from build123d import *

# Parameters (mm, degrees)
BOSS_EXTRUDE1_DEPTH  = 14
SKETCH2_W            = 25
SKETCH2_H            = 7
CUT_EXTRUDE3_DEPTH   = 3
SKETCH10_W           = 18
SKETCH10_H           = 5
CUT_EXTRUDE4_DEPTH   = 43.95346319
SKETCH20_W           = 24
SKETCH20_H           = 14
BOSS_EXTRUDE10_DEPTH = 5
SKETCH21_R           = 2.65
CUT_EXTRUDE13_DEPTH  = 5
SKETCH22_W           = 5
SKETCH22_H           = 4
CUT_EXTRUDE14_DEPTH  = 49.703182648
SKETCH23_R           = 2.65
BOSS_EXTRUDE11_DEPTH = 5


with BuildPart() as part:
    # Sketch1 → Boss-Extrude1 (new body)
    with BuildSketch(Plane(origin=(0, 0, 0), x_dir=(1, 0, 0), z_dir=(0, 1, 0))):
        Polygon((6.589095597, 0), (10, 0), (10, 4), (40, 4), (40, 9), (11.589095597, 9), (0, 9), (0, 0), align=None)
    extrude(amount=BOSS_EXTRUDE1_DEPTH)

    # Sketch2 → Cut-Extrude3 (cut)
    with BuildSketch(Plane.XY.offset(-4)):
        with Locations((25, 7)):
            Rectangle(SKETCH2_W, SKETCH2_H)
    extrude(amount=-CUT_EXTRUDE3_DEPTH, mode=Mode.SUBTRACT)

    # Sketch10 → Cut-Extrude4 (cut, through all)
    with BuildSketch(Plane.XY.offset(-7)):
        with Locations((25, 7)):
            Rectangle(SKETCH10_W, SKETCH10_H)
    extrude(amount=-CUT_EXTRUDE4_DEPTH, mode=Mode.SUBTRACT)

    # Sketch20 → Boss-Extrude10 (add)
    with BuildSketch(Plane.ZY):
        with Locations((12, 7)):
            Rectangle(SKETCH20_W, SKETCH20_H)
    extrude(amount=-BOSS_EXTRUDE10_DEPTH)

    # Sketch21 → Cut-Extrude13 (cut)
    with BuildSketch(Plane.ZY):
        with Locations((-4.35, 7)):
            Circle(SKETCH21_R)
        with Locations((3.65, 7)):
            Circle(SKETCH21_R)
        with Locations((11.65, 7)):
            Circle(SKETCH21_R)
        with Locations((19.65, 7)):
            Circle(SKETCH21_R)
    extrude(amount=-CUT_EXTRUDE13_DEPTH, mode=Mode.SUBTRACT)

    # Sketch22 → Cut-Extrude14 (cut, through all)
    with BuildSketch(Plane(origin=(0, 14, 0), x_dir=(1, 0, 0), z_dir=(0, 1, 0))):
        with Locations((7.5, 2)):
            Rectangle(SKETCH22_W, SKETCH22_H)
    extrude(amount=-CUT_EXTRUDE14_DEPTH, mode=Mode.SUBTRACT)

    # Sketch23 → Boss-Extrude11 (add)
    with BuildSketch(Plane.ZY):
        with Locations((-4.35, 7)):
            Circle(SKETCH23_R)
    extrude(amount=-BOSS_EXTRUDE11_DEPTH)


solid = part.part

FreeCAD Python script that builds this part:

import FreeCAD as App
import Part
import Sketcher
from FreeCAD import Vector

doc = App.newDocument("Part")
body = doc.addObject("PartDesign::Body", "Body")

sketch1 = doc.addObject("Sketcher::SketchObject", "Sketch")
body.addObject(sketch1)
sketch1.AttachmentSupport = (doc.XZ_Plane, [""])
sketch1.MapMode = "FlatFace"
sketch1.addGeometry([
    Part.LineSegment(Vector(10, 0, 0), Vector(10, -4, 0)),
    Part.LineSegment(Vector(10, -4, 0), Vector(40, -4, 0)),
    Part.LineSegment(Vector(40, -4, 0), Vector(40, -9, 0)),
    Part.LineSegment(Vector(40, -9, 0), Vector(0, -9, 0)),
    Part.LineSegment(Vector(0, -9, 0), Vector(0, 0, 0)),
    Part.LineSegment(Vector(0, 0, 0), Vector(10, 0, 0)),
], False)
sketch1.addConstraint([
    Sketcher.Constraint("Coincident", 0, 2, 1, 1),
    Sketcher.Constraint("Coincident", 1, 2, 2, 1),
    Sketcher.Constraint("Coincident", 2, 2, 3, 1),
    Sketcher.Constraint("Coincident", 3, 2, 4, 1),
    Sketcher.Constraint("Coincident", 4, 2, 5, 1),
    Sketcher.Constraint("Coincident", 5, 2, 0, 1),
    Sketcher.Constraint("Vertical", 0),
    Sketcher.Constraint("Horizontal", 1),
    Sketcher.Constraint("Vertical", 2),
    Sketcher.Constraint("Horizontal", 3),
    Sketcher.Constraint("Vertical", 4),
    Sketcher.Constraint("Horizontal", 5),
    Sketcher.Constraint("Coincident", 4, 2, -1, 1),
    Sketcher.Constraint("DistanceX", 1, 1, 1, 2, 30.0),
    Sketcher.Constraint("DistanceX", 3, 2, 3, 1, 40.0),
    Sketcher.Constraint("DistanceY", 0, 2, 0, 1, 4.0),
    Sketcher.Constraint("DistanceY", 2, 2, 2, 1, 5.0),
])
pad1 = doc.addObject("PartDesign::Pad", "Pad")
body.addObject(pad1)
pad1.Profile = sketch1
pad1.Length = 14
pad1.Reversed = True

sketch2 = doc.addObject("Sketcher::SketchObject", "Sketch001")
body.addObject(sketch2)
sketch2.AttachmentSupport = (doc.XY_Plane, [""])
sketch2.MapMode = "FlatFace"
sketch2.AttachmentOffset = App.Placement(Vector(0, 0, -4), App.Rotation())
sketch2.addGeometry([
    Part.LineSegment(Vector(12, 10, 0), Vector(12, 4, 0)),
    Part.LineSegment(Vector(12, 4, 0), Vector(38, 4, 0)),
    Part.LineSegment(Vector(38, 4, 0), Vector(38, 10, 0)),
    Part.LineSegment(Vector(38, 10, 0), Vector(12, 10, 0)),
], False)
sketch2.addConstraint([
    Sketcher.Constraint("Coincident", 0, 2, 1, 1),
    Sketcher.Constraint("Coincident", 1, 2, 2, 1),
    Sketcher.Constraint("Coincident", 2, 2, 3, 1),
    Sketcher.Constraint("Coincident", 3, 2, 0, 1),
    Sketcher.Constraint("Vertical", 0),
    Sketcher.Constraint("Horizontal", 1),
    Sketcher.Constraint("Vertical", 2),
    Sketcher.Constraint("Horizontal", 3),
    Sketcher.Constraint("DistanceX", 1, 1, 1, 2, 25.0),
    Sketcher.Constraint("DistanceY", 0, 2, 0, 1, 7.0),
    Sketcher.Constraint("DistanceX", -1, 1, 0, 2, 12.5),
    Sketcher.Constraint("DistanceY", -1, 1, 0, 2, 3.5),
])
pocket1 = doc.addObject("PartDesign::Pocket", "Pocket")
body.addObject(pocket1)
pocket1.Profile = sketch2
pocket1.Length = 3

sketch3 = doc.addObject("Sketcher::SketchObject", "Sketch002")
body.addObject(sketch3)
sketch3.AttachmentSupport = (doc.XY_Plane, [""])
sketch3.MapMode = "FlatFace"
sketch3.AttachmentOffset = App.Placement(Vector(0, 0, -7), App.Rotation())
sketch3.addGeometry([
    Part.LineSegment(Vector(16, 10, 0), Vector(16, 4, 0)),
    Part.LineSegment(Vector(16, 4, 0), Vector(34, 4, 0)),
    Part.LineSegment(Vector(34, 4, 0), Vector(34, 10, 0)),
    Part.LineSegment(Vector(34, 10, 0), Vector(16, 10, 0)),
], False)
sketch3.addConstraint([
    Sketcher.Constraint("Coincident", 0, 2, 1, 1),
    Sketcher.Constraint("Coincident", 1, 2, 2, 1),
    Sketcher.Constraint("Coincident", 2, 2, 3, 1),
    Sketcher.Constraint("Coincident", 3, 2, 0, 1),
    Sketcher.Constraint("Vertical", 0),
    Sketcher.Constraint("Horizontal", 1),
    Sketcher.Constraint("Vertical", 2),
    Sketcher.Constraint("Horizontal", 3),
    Sketcher.Constraint("DistanceX", 1, 1, 1, 2, 18.0),
    Sketcher.Constraint("DistanceY", 0, 2, 0, 1, 5.0),
    Sketcher.Constraint("DistanceX", -1, 1, 0, 2, 16.0),
    Sketcher.Constraint("DistanceY", -1, 1, 0, 2, 4.5),
])
pocket2 = doc.addObject("PartDesign::Pocket", "Pocket001")
body.addObject(pocket2)
pocket2.Profile = sketch3
pocket2.Type = "ThroughAll"

sketch4 = doc.addObject("Sketcher::SketchObject", "Sketch003")
body.addObject(sketch4)
sketch4.AttachmentSupport = (doc.YZ_Plane, [""])
sketch4.MapMode = "FlatFace"
sketch4.addGeometry([
    Part.LineSegment(Vector(14, 0, 0), Vector(0, 0, 0)),
    Part.LineSegment(Vector(0, 0, 0), Vector(0, 24, 0)),
    Part.LineSegment(Vector(0, 24, 0), Vector(14, 24, 0)),
    Part.LineSegment(Vector(14, 24, 0), Vector(14, 0, 0)),
], False)
sketch4.addConstraint([
    Sketcher.Constraint("Coincident", 0, 2, 1, 1),
    Sketcher.Constraint("Coincident", 1, 2, 2, 1),
    Sketcher.Constraint("Coincident", 2, 2, 3, 1),
    Sketcher.Constraint("Coincident", 3, 2, 0, 1),
    Sketcher.Constraint("Horizontal", 0),
    Sketcher.Constraint("Vertical", 1),
    Sketcher.Constraint("Horizontal", 2),
    Sketcher.Constraint("Vertical", 3),
    Sketcher.Constraint("Coincident", 0, 2, -1, 1),
    Sketcher.Constraint("DistanceX", 0, 2, 0, 1, 14.0),
    Sketcher.Constraint("DistanceY", 1, 1, 1, 2, 24.0),
])
pad2 = doc.addObject("PartDesign::Pad", "Pad001")
body.addObject(pad2)
pad2.Profile = sketch4
pad2.Length = 5

sketch5 = doc.addObject("Sketcher::SketchObject", "Sketch004")
body.addObject(sketch5)
sketch5.AttachmentSupport = (doc.YZ_Plane, [""])
sketch5.MapMode = "FlatFace"
sketch5.addGeometry([
    Part.Circle(Vector(7, -4.3, 0), Vector(0, 0, 1), 2.6),
    Part.Circle(Vector(7, 3.6, 0), Vector(0, 0, 1), 2.6),
    Part.Circle(Vector(7, 11.7, 0), Vector(0, 0, 1), 2.6),
    Part.Circle(Vector(7, 19.6, 0), Vector(0, 0, 1), 2.6),
], False)
sketch5.addConstraint([
    Sketcher.Constraint("Equal", 0, 1),
    Sketcher.Constraint("Equal", 1, 2),
    Sketcher.Constraint("Equal", 2, 3),
    Sketcher.Constraint("Vertical", 0, 3, 1, 3),
    Sketcher.Constraint("Vertical", 1, 3, 2, 3),
    Sketcher.Constraint("Vertical", 2, 3, 3, 3),
    Sketcher.Constraint("Diameter", 0, 5.3),
    Sketcher.Constraint("DistanceX", -1, 1, 0, 3, 7.0),
    Sketcher.Constraint("DistanceY", 0, 3, 1, 3, 8.0),
    Sketcher.Constraint("DistanceY", 1, 3, 2, 3, 8.0),
    Sketcher.Constraint("DistanceY", 2, 3, 3, 3, 8.0),
    Sketcher.Constraint("DistanceY", 0, 3, -1, 1, 4.35),
])
pocket3 = doc.addObject("PartDesign::Pocket", "Pocket002")
body.addObject(pocket3)
pocket3.Profile = sketch5
pocket3.Length = 5
pocket3.Reversed = True

sketch6 = doc.addObject("Sketcher::SketchObject", "Sketch005")
body.addObject(sketch6)
sketch6.AttachmentSupport = (doc.XZ_Plane, [""])
sketch6.MapMode = "FlatFace"
sketch6.AttachmentOffset = App.Placement(Vector(0, 0, -14), App.Rotation())
sketch6.addGeometry([
    Part.LineSegment(Vector(5, -4, 0), Vector(5, 0, 0)),
    Part.LineSegment(Vector(5, 0, 0), Vector(10, 0, 0)),
    Part.LineSegment(Vector(10, 0, 0), Vector(10, -4, 0)),
    Part.LineSegment(Vector(10, -4, 0), Vector(5, -4, 0)),
], False)
sketch6.addConstraint([
    Sketcher.Constraint("Coincident", 0, 2, 1, 1),
    Sketcher.Constraint("Coincident", 1, 2, 2, 1),
    Sketcher.Constraint("Coincident", 2, 2, 3, 1),
    Sketcher.Constraint("Coincident", 3, 2, 0, 1),
    Sketcher.Constraint("Vertical", 0),
    Sketcher.Constraint("Horizontal", 1),
    Sketcher.Constraint("Vertical", 2),
    Sketcher.Constraint("Horizontal", 3),
    Sketcher.Constraint("PointOnObject", 0, 2, -1),
    Sketcher.Constraint("DistanceX", 1, 1, 1, 2, 5.0),
    Sketcher.Constraint("DistanceY", 0, 1, 0, 2, 4.0),
    Sketcher.Constraint("DistanceX", -1, 1, 0, 2, 5.0),
])
pocket4 = doc.addObject("PartDesign::Pocket", "Pocket003")
body.addObject(pocket4)
pocket4.Profile = sketch6
pocket4.Type = "ThroughAll"
pocket4.Reversed = True

sketch7 = doc.addObject("Sketcher::SketchObject", "Sketch006")
body.addObject(sketch7)
sketch7.AttachmentSupport = (doc.YZ_Plane, [""])
sketch7.MapMode = "FlatFace"
sketch7.addGeometry(Part.Circle(Vector(7, -4.3, 0), Vector(0, 0, 1), 2.6), False)
sketch7.addConstraint([
    Sketcher.Constraint("Diameter", 0, 5.3),
    Sketcher.Constraint("DistanceX", -1, 1, 0, 3, 7.0),
    Sketcher.Constraint("DistanceY", 0, 3, -1, 1, 4.35),
])
pad3 = doc.addObject("PartDesign::Pad", "Pad002")
body.addObject(pad3)
pad3.Profile = sketch7
pad3.Length = 5

doc.recompute()
